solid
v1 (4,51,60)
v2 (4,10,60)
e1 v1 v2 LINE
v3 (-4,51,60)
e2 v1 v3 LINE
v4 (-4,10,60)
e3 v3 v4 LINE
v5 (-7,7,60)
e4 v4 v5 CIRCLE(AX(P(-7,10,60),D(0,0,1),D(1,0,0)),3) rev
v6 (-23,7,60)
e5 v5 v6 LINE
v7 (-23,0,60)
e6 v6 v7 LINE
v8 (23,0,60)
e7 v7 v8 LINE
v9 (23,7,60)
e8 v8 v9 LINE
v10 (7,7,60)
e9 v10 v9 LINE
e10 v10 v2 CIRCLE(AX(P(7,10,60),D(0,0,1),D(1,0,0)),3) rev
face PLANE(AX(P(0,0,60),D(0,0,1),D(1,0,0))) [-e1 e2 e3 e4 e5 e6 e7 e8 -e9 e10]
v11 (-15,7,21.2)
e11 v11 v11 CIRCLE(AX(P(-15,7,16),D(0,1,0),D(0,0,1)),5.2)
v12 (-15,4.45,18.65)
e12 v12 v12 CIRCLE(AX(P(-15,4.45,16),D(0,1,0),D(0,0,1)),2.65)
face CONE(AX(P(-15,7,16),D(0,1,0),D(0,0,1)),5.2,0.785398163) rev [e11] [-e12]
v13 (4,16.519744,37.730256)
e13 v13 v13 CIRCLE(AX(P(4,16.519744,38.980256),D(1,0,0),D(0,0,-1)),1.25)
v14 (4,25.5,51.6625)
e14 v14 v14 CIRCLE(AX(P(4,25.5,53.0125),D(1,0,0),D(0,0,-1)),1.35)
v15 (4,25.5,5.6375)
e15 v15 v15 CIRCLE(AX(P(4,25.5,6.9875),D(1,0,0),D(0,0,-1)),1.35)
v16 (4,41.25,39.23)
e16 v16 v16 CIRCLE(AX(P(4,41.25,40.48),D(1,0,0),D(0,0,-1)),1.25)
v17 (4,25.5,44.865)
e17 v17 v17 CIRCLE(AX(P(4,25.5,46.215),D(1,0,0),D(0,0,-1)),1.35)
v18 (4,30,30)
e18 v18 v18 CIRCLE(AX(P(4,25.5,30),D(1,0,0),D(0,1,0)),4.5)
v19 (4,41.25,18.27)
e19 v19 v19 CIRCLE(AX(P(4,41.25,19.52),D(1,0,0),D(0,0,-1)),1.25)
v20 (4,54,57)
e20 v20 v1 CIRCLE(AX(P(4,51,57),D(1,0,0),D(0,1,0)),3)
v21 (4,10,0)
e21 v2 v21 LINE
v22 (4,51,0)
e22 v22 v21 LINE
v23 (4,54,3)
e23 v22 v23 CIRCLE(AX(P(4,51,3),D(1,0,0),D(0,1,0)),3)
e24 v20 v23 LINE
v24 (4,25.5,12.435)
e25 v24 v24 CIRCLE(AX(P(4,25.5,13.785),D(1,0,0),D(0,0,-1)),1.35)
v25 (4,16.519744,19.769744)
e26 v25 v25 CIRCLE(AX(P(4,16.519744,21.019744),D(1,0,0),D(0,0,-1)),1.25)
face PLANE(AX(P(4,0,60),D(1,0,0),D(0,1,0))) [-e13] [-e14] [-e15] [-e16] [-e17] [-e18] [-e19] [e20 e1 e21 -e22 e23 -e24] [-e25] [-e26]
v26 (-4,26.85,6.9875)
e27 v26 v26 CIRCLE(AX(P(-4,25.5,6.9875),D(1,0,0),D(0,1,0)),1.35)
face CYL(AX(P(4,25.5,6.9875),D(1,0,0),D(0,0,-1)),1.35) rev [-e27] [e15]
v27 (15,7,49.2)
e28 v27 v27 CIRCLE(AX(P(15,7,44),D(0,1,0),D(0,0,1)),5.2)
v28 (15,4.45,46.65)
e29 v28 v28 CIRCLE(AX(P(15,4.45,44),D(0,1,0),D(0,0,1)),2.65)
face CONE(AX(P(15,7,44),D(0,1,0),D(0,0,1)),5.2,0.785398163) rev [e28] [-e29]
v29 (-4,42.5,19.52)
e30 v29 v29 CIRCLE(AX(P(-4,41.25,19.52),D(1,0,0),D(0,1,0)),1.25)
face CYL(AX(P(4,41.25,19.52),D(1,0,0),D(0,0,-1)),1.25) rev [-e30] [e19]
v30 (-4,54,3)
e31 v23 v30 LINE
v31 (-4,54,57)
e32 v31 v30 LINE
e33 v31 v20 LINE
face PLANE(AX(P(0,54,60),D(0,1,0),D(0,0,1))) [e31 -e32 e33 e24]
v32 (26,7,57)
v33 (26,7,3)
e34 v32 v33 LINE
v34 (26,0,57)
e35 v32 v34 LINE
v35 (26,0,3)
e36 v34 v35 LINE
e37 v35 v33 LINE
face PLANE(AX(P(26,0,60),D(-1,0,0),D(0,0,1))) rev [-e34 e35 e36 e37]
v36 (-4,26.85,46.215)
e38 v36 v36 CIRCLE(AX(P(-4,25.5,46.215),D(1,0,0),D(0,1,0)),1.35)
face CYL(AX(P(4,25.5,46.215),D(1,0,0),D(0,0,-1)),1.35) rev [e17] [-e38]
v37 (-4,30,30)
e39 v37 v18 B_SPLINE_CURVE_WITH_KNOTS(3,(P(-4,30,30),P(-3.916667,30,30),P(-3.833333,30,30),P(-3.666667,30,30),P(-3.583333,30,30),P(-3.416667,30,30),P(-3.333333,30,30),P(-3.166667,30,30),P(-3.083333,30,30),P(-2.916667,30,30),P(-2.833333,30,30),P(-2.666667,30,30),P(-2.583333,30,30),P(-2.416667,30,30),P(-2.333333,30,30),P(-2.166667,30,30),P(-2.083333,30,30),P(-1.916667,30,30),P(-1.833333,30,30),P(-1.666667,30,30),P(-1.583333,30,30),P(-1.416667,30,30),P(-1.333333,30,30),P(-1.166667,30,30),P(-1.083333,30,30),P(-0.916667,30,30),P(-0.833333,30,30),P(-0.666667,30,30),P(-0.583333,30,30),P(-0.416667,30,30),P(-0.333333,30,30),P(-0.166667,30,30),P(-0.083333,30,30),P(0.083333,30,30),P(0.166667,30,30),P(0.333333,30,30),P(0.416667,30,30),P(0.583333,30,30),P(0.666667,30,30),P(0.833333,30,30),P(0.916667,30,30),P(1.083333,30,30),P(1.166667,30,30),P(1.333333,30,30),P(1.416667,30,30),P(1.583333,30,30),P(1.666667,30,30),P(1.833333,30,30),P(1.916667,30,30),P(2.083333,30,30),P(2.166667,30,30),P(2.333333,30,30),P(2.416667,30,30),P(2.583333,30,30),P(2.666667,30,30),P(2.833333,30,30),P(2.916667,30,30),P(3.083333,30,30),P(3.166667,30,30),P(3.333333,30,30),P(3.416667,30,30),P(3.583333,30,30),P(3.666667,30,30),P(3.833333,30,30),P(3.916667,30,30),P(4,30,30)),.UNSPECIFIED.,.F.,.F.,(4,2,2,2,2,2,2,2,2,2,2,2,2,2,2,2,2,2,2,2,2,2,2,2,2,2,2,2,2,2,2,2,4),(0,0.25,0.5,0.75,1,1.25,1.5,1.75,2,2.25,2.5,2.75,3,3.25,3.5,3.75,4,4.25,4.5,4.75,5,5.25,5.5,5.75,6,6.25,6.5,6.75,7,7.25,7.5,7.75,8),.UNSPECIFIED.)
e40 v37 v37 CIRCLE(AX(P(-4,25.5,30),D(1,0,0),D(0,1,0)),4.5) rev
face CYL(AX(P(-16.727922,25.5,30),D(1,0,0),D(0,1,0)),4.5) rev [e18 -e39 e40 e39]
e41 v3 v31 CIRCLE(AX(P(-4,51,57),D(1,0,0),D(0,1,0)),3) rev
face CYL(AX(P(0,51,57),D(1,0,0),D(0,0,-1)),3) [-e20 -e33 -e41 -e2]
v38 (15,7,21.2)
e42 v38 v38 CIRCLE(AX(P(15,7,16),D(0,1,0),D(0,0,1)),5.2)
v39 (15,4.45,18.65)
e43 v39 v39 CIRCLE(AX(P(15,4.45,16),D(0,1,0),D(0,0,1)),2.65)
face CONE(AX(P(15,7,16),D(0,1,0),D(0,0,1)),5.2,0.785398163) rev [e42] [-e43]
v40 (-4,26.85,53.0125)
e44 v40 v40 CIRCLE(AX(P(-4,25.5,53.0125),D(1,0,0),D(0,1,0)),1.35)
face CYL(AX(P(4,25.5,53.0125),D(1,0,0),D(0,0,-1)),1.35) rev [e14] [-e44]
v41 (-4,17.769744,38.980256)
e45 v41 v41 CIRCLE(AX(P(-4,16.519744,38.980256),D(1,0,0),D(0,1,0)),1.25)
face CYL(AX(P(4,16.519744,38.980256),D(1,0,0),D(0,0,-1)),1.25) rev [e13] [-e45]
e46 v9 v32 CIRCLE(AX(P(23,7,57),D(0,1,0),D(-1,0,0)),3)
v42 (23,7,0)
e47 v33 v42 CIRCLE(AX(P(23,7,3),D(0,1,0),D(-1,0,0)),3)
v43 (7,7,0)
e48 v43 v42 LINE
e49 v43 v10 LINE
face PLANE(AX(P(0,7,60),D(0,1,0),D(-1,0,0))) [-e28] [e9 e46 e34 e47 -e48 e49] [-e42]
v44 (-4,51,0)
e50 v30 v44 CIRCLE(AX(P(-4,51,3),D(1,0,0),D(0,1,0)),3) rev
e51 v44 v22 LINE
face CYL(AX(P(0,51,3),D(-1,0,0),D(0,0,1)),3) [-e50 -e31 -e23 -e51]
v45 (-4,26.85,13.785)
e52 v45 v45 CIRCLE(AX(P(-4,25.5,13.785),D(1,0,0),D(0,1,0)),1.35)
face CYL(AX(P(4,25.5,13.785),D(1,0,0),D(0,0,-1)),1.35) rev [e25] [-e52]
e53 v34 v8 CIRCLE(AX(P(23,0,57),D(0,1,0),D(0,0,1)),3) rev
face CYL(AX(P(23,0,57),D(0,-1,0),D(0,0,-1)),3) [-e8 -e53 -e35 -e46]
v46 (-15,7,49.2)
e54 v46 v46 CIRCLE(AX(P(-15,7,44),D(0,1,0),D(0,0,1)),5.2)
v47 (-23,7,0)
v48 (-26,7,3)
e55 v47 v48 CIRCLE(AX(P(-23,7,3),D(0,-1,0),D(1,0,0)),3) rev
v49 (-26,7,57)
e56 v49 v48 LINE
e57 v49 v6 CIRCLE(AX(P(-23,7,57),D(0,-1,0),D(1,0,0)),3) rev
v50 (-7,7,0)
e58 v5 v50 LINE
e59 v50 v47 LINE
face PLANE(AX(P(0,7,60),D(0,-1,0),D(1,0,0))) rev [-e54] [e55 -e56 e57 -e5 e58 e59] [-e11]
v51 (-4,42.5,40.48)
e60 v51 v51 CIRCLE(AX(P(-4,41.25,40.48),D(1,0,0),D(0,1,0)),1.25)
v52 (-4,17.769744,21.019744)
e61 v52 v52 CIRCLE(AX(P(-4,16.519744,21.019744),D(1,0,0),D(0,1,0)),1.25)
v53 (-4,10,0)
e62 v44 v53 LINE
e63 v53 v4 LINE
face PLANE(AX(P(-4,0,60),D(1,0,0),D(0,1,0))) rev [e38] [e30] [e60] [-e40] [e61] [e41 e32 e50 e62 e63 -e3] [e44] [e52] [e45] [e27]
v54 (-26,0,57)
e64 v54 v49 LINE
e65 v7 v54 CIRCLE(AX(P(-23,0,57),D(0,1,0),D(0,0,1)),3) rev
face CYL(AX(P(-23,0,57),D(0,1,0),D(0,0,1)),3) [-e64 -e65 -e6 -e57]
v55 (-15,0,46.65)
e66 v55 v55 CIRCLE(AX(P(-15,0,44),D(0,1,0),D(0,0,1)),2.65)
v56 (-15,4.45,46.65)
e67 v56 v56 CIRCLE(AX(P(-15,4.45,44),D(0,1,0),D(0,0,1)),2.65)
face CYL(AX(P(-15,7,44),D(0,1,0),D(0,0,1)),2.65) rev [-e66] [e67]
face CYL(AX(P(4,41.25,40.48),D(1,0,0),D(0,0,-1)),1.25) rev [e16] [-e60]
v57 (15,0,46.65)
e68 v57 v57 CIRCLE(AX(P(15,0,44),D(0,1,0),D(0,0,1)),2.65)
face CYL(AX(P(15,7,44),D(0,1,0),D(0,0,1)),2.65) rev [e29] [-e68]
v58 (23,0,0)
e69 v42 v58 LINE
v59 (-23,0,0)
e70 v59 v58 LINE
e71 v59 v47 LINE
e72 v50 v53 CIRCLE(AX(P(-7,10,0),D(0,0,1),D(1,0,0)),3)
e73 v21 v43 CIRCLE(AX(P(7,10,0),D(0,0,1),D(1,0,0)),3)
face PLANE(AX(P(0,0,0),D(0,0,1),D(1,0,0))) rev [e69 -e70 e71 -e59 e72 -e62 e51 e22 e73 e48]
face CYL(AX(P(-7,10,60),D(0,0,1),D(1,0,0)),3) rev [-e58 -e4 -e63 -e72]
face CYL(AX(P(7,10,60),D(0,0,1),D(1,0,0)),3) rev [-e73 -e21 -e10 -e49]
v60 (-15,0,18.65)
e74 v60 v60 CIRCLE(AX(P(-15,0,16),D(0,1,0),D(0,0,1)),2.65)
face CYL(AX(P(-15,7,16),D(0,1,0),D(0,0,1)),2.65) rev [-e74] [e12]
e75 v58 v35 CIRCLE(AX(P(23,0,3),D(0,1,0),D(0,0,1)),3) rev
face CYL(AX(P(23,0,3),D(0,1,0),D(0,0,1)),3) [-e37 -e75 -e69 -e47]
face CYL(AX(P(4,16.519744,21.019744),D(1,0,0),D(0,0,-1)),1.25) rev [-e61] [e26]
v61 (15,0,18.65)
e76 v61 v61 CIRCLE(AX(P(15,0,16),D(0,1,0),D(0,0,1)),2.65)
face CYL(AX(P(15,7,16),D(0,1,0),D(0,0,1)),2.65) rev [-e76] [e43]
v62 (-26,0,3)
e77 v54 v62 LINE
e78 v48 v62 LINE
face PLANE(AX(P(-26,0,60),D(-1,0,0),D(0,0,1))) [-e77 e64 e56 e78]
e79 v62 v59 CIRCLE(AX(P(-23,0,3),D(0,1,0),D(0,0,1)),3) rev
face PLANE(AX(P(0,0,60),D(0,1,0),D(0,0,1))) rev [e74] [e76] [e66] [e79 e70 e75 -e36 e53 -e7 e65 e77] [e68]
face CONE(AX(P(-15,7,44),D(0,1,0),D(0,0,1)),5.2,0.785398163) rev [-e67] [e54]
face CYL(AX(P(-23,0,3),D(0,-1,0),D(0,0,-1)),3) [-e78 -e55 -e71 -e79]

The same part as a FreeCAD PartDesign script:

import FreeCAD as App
import Part
import Sketcher

V = App.Vector


def edges_at(feature, points):
    """Names of the edges that pass closest to the given points."""
    edges = feature.Shape.Edges
    near = lambda p: min(range(len(edges)), key=lambda i: edges[i].distToShape(Part.Vertex(*p))[0])
    return sorted({f"Edge{near(p) + 1}" for p in points})

doc = App.newDocument("Part")
body = doc.addObject("PartDesign::Body", "Body")

# Sketch on XY plane
sketch1 = doc.addObject("Sketcher::SketchObject", "Sketch")
body.addObject(sketch1)
sketch1.AttachmentSupport = (doc.XY_Plane, [""])
sketch1.MapMode = "FlatFace"
sketch1.addGeometry(Part.LineSegment(V(-4, 7, 0), V(-26, 7, 0)), False)
sketch1.addGeometry(Part.LineSegment(V(-26, 7, 0), V(-26, 0, 0)), False)
sketch1.addGeometry(Part.LineSegment(V(-26, 0, 0), V(26, 0, 0)), False)
sketch1.addGeometry(Part.LineSegment(V(26, 0, 0), V(26, 7, 0)), False)
sketch1.addGeometry(Part.LineSegment(V(26, 7, 0), V(4, 7, 0)), False)
sketch1.addGeometry(Part.LineSegment(V(4, 7, 0), V(4, 54, 0)), False)
sketch1.addGeometry(Part.LineSegment(V(4, 54, 0), V(-4, 54, 0)), False)
sketch1.addGeometry(Part.LineSegment(V(-4, 54, 0), V(-4, 7, 0)), False)
sketch1.addConstraint(Sketcher.Constraint("Coincident", 0, 2, 1, 1))
sketch1.addConstraint(Sketcher.Constraint("Coincident", 1, 2, 2, 1))
sketch1.addConstraint(Sketcher.Constraint("Coincident", 2, 2, 3, 1))
sketch1.addConstraint(Sketcher.Constraint("Coincident", 3, 2, 4, 1))
sketch1.addConstraint(Sketcher.Constraint("Coincident", 4, 2, 5, 1))
sketch1.addConstraint(Sketcher.Constraint("Coincident", 5, 2, 6, 1))
sketch1.addConstraint(Sketcher.Constraint("Coincident", 6, 2, 7, 1))
sketch1.addConstraint(Sketcher.Constraint("Coincident", 7, 2, 0, 1))
sketch1.addConstraint(Sketcher.Constraint("Horizontal", 0))
sketch1.addConstraint(Sketcher.Constraint("Vertical", 1))
sketch1.addConstraint(Sketcher.Constraint("Horizontal", 2))
sketch1.addConstraint(Sketcher.Constraint("Vertical", 3))
sketch1.addConstraint(Sketcher.Constraint("Horizontal", 4))
sketch1.addConstraint(Sketcher.Constraint("Vertical", 5))
sketch1.addConstraint(Sketcher.Constraint("Horizontal", 6))
sketch1.addConstraint(Sketcher.Constraint("Vertical", 7))
sketch1.addConstraint(Sketcher.Constraint("Symmetric", 1, 2, 2, 2, -1, 1))
sketch1.addConstraint(Sketcher.Constraint("Symmetric", 4, 2, 7, 2, -2))
sketch1.addConstraint(Sketcher.Constraint("DistanceX", 0, 2, 0, 1, 22.0))
sketch1.addConstraint(Sketcher.Constraint("DistanceX", 2, 1, 2, 2, 52.0))
sketch1.addConstraint(Sketcher.Constraint("DistanceY", 1, 2, 1, 1, 7.0))
sketch1.addConstraint(Sketcher.Constraint("DistanceY", 5, 1, 5, 2, 47.0))
pad1 = doc.addObject("PartDesign::Pad", "Pad")
body.addObject(pad1)
pad1.Profile = sketch1
pad1.Length = 60
doc.recompute()

fillet = doc.addObject("PartDesign::Fillet", "Fillet")
body.addObject(fillet)
fillet.Base = (pad1, edges_at(pad1, [
    (0, 54, 0),
    (26, 3.5, 0),
    (-26, 3.5, 0),
    (26, 3.5, 60),
    (-4, 7, 30),
    (4, 7, 30),
    (0, 54, 60),
    (-26, 3.5, 60),
]))
fillet.Radius = 3

# Sketch on YZ plane
sketch2 = doc.addObject("Sketcher::SketchObject", "Sketch001")
body.addObject(sketch2)
sketch2.AttachmentSupport = (doc.YZ_Plane, [""])
sketch2.MapMode = "FlatFace"
sketch2.AttachmentOffset = App.Placement(V(0, 0, 4), App.Rotation())
sketch2.addGeometry(Part.Circle(V(25.5, 30, 0), V(0, 0, 1), 4.5), False)
sketch2.addConstraint(Sketcher.Constraint("Diameter", 0, 9.0))
sketch2.addConstraint(Sketcher.Constraint("DistanceY", -1, 1, 0, 3, 30.0))
sketch2.addConstraint(Sketcher.Constraint("DistanceX", -1, 1, 0, 3, 25.5))
pocket1 = doc.addObject("PartDesign::Pocket", "Pocket")
body.addObject(pocket1)
pocket1.Profile = sketch2
pocket1.Length = 8

# Sketch on YZ plane
sketch3 = doc.addObject("Sketcher::SketchObject", "Sketch002")
body.addObject(sketch3)
sketch3.AttachmentSupport = (doc.YZ_Plane, [""])
sketch3.MapMode = "FlatFace"
sketch3.AttachmentOffset = App.Placement(V(0, 0, 4), App.Rotation())
sketch3.addGeometry(Part.Circle(V(25.5, 46.2, 0), V(0, 0, 1), 1.4), False)
sketch3.addGeometry(Part.Circle(V(25.5, 13.8, 0), V(0, 0, 1), 1.4), False)
sketch3.addGeometry(Part.Circle(V(25.5, 53, 0), V(0, 0, 1), 1.4), False)
sketch3.addGeometry(Part.Circle(V(25.5, 7, 0), V(0, 0, 1), 1.4), False)
sketch3.addConstraint(Sketcher.Constraint("Equal", 0, 1))
sketch3.addConstraint(Sketcher.Constraint("Equal", 1, 2))
sketch3.addConstraint(Sketcher.Constraint("Equal", 2, 3))
sketch3.addConstraint(Sketcher.Constraint("Vertical", 0, 3, 1, 3))
sketch3.addConstraint(Sketcher.Constraint("Vertical", 1, 3, 2, 3))
sketch3.addConstraint(Sketcher.Constraint("Vertical", 2, 3, 3, 3))
sketch3.addConstraint(Sketcher.Constraint("Diameter", 0, 2.7))
sketch3.addConstraint(Sketcher.Constraint("DistanceX", -1, 1, 0, 3, 25.5))
sketch3.addConstraint(Sketcher.Constraint("DistanceY", 1, 3, 0, 3, 32.43))
sketch3.addConstraint(Sketcher.Constraint("DistanceY", -1, 1, 0, 3, 46.215))
sketch3.addConstraint(Sketcher.Constraint("DistanceY", 3, 3, 2, 3, 46.025))
sketch3.addConstraint(Sketcher.Constraint("DistanceY", -1, 1, 2, 3, 53.0125))
doc.recompute()
hole = doc.addObject("PartDesign::Hole", "Hole")
body.addObject(hole)
hole.Profile = sketch3
hole.ThreadType = "None"
hole.Diameter = 2.7
hole.DepthType = "ThroughAll"

# Sketch on YZ plane
sketch4 = doc.addObject("Sketcher::SketchObject", "Sketch003")
body.addObject(sketch4)
sketch4.AttachmentSupport = (doc.YZ_Plane, [""])
sketch4.MapMode = "FlatFace"
sketch4.AttachmentOffset = App.Placement(V(0, 0, 4), App.Rotation())
sketch4.addGeometry(Part.Circle(V(41.2, 40.5, 0), V(0, 0, 1), 1.2), False)
sketch4.addGeometry(Part.Circle(V(41.2, 19.5, 0), V(0, 0, 1), 1.2), False)
sketch4.addGeometry(Part.Circle(V(16.5, 21, 0), V(0, 0, 1), 1.2), False)
sketch4.addGeometry(Part.Circle(V(16.5, 39, 0), V(0, 0, 1), 1.2), False)
sketch4.addConstraint(Sketcher.Constraint("Equal", 0, 1))
sketch4.addConstraint(Sketcher.Constraint("Equal", 1, 2))
sketch4.addConstraint(Sketcher.Constraint("Equal", 2, 3))
sketch4.addConstraint(Sketcher.Constraint("Vertical", 0, 3, 1, 3))
sketch4.addConstraint(Sketcher.Constraint("Vertical", 2, 3, 3, 3))
sketch4.addConstraint(Sketcher.Constraint("Diameter", 0, 2.5))
sketch4.addConstraint(Sketcher.Constraint("DistanceX", -1, 1, 0, 3, 41.25))
sketch4.addConstraint(Sketcher.Constraint("DistanceY", -1, 1, 0, 3, 40.48))
sketch4.addConstraint(Sketcher.Constraint("DistanceY", -1, 1, 1, 3, 19.52))
sketch4.addConstraint(Sketcher.Constraint("DistanceX", -1, 1, 2, 3, 16.519744))
sketch4.addConstraint(Sketcher.Constraint("DistanceY", -1, 1, 2, 3, 21.019744))
sketch4.addConstraint(Sketcher.Constraint("DistanceY", -1, 1, 3, 3, 38.980256))
doc.recompute()
hole2 = doc.addObject("PartDesign::Hole", "Hole001")
body.addObject(hole2)
hole2.Profile = sketch4
hole2.ThreadType = "None"
hole2.Diameter = 2.5
hole2.DepthType = "ThroughAll"

# Sketch on XZ plane
sketch5 = doc.addObject("Sketcher::SketchObject", "Sketch004")
body.addObject(sketch5)
sketch5.AttachmentSupport = (doc.XZ_Plane, [""])
sketch5.MapMode = "FlatFace"
sketch5.AttachmentOffset = App.Placement(V(0, 0, -7), App.Rotation())
sketch5.addGeometry(Part.Circle(V(-15, 16, 0), V(0, 0, 1), 2.6), False)
sketch5.addGeometry(Part.Circle(V(-15, 44, 0), V(0, 0, 1), 2.6), False)
sketch5.addGeometry(Part.Circle(V(15, 44, 0), V(0, 0, 1), 2.6), False)
sketch5.addGeometry(Part.Circle(V(15, 16, 0), V(0, 0, 1), 2.6), False)
sketch5.addConstraint(Sketcher.Constraint("Equal", 0, 1))
sketch5.addConstraint(Sketcher.Constraint("Equal", 1, 2))
sketch5.addConstraint(Sketcher.Constraint("Equal", 2, 3))
sketch5.addConstraint(Sketcher.Constraint("Symmetric", 1, 3, 2, 3, -2))
sketch5.addConstraint(Sketcher.Constraint("Symmetric", 0, 3, 3, 3, -2))
sketch5.addConstraint(Sketcher.Constraint("Vertical", 0, 3, 1, 3))
sketch5.addConstraint(Sketcher.Constraint("Diameter", 0, 5.3))
sketch5.addConstraint(Sketcher.Constraint("DistanceX", 0, 3, -1, 1, 15.0))
sketch5.addConstraint(Sketcher.Constraint("DistanceY", -1, 1, 0, 3, 16.0))
sketch5.addConstraint(Sketcher.Constraint("DistanceY", -1, 1, 1, 3, 44.0))
doc.recompute()
hole3 = doc.addObject("PartDesign::Hole", "Hole002")
body.addObject(hole3)
hole3.Profile = sketch5
hole3.ThreadType = "None"
hole3.Diameter = 5.3
hole3.DepthType = "ThroughAll"
hole3.HoleCutType = "Countersink"
hole3.HoleCutDiameter = 10.4
hole3.HoleCutCountersinkAngle = 90
hole3.Reversed = True

doc.recompute()
